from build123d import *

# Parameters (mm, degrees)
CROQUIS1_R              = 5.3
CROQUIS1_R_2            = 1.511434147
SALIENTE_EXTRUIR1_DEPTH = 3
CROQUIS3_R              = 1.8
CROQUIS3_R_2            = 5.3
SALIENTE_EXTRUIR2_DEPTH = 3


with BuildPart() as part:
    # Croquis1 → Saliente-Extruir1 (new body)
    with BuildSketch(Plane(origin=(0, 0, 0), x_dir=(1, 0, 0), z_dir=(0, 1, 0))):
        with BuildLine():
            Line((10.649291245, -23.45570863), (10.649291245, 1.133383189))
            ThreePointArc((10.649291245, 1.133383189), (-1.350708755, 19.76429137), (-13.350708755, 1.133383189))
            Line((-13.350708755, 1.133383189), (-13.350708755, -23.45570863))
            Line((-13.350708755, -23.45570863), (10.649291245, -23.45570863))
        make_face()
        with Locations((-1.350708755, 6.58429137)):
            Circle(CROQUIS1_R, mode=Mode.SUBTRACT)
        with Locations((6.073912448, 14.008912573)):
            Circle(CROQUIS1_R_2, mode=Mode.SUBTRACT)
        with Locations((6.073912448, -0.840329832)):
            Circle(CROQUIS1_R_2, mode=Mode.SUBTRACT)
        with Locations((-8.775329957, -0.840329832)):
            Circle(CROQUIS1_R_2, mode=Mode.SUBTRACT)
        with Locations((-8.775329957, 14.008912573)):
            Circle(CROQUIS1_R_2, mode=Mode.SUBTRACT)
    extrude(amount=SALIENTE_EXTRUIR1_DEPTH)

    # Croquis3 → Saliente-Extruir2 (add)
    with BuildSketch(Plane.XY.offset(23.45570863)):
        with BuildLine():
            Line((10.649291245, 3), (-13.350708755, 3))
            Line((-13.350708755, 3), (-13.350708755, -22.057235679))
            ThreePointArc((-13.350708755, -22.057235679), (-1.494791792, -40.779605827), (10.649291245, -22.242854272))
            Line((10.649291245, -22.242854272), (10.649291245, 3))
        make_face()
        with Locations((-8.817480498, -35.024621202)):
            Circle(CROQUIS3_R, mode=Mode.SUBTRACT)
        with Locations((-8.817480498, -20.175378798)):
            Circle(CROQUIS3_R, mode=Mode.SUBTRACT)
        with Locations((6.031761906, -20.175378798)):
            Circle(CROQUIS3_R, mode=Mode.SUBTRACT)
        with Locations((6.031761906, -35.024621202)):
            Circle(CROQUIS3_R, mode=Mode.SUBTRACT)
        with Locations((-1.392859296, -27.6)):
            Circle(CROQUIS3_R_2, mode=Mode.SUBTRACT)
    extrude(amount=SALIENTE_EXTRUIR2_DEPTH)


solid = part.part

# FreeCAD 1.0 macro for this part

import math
import FreeCAD as App
import Part
import Sketcher

doc = App.newDocument("Part")
body = doc.addObject("PartDesign::Body", "Body")

# Sketch on XZ plane
sketch1 = body.newObject("Sketcher::SketchObject", "Sketch")
sketch1.AttachmentSupport = (doc.getObject("XZ_Plane"), [""])
sketch1.MapMode = "FlatFace"
sketch1.addGeometry([
    Part.LineSegment(App.Vector(10.649291, 23.455709, 0), App.Vector(10.649291, -1.133383, 0)),  # 0
    Part.ArcOfCircle(Part.Circle(App.Vector(-1.350709, -6.584291, 0), App.Vector(0, 0, 1), 13.18), math.radians(155.57044), math.radians(384.42956)),  # 1
    Part.LineSegment(App.Vector(-13.350709, -1.133383, 0), App.Vector(-13.350709, 23.455709, 0)),  # 2
    Part.LineSegment(App.Vector(-13.350709, 23.455709, 0), App.Vector(10.649291, 23.455709, 0)),  # 3
    Part.Circle(App.Vector(-8.77533, 0.84033, 0), App.Vector(0, 0, 1), 1.511434),  # 4
    Part.Circle(App.Vector(-1.350709, -6.584291, 0), App.Vector(0, 0, 1), 5.3),  # 5
    Part.Circle(App.Vector(6.073912, 0.84033, 0), App.Vector(0, 0, 1), 1.511434),  # 6
    Part.Circle(App.Vector(-8.77533, -14.008913, 0), App.Vector(0, 0, 1), 1.511434),  # 7
    Part.Circle(App.Vector(6.073912, -14.008913, 0), App.Vector(0, 0, 1), 1.511434),  # 8
], False)
sketch1.addConstraint([
    Sketcher.Constraint("Coincident", 0, 2, 1, 2),
    Sketcher.Constraint("Coincident", 1, 1, 2, 1),
    Sketcher.Constraint("Coincident", 2, 2, 3, 1),
    Sketcher.Constraint("Coincident", 3, 2, 0, 1),
    Sketcher.Constraint("Vertical", 0),
    Sketcher.Constraint("Vertical", 2),
    Sketcher.Constraint("Horizontal", 3),
    Sketcher.Constraint("Coincident", 5, 3, 1, 3),
    Sketcher.Constraint("Equal", 4, 6),
    Sketcher.Constraint("Equal", 6, 7),
    Sketcher.Constraint("Equal", 7, 8),
    Sketcher.Constraint("Horizontal", 4, 3, 6, 3),
    Sketcher.Constraint("Horizontal", 7, 3, 8, 3),
    Sketcher.Constraint("Horizontal", 0, 2, 1, 1),
    Sketcher.Constraint("Vertical", 4, 3, 7, 3),
    Sketcher.Constraint("Vertical", 6, 3, 8, 3),
    Sketcher.Constraint("Diameter", 5, 10.6),
    Sketcher.Constraint("DistanceX", 3, 1, 3, 2, 24.0),
    Sketcher.Constraint("Radius", 1, 13.18),
    Sketcher.Constraint("Diameter", 4, 3.022868),
    Sketcher.Constraint("DistanceY", 1, 3, 2, 2, 30.04),
    Sketcher.Constraint("DistanceX", 1, 3, -1, 1, 1.350709),
    Sketcher.Constraint("DistanceY", 1, 3, -1, 1, 6.584291),
    Sketcher.Constraint("DistanceX", 4, 3, -1, 1, 8.77533),
    Sketcher.Constraint("DistanceY", -1, 1, 4, 3, 0.84033),
    Sketcher.Constraint("DistanceX", 1, 3, 6, 3, 7.424621),
    Sketcher.Constraint("DistanceY", 7, 3, 1, 3, 7.424621),
])
pad1 = body.newObject("PartDesign::Pad", "Pad")
pad1.Profile = sketch1
pad1.Length = 3
pad1.Reversed = True

# Sketch on XY plane
sketch2 = body.newObject("Sketcher::SketchObject", "Sketch001")
sketch2.AttachmentSupport = (doc.getObject("XY_Plane"), [""])
sketch2.MapMode = "FlatFace"
sketch2.AttachmentOffset = App.Placement(App.Vector(0, 0, 23.455709), App.Rotation())
sketch2.addGeometry([
    Part.LineSegment(App.Vector(10.649291, 3, 0), App.Vector(-13.350709, 3, 0)),  # 0
    Part.LineSegment(App.Vector(-13.350709, 3, 0), App.Vector(-13.350709, -22.057236, 0)),  # 1
    Part.ArcOfCircle(Part.Circle(App.Vector(-1.392859, -27.6, 0), App.Vector(0, 0, 1), 13.18), math.radians(155.13109), math.radians(383.982665)),  # 2
    Part.LineSegment(App.Vector(10.649291, -22.242854, 0), App.Vector(10.649291, 3, 0)),  # 3
    Part.Circle(App.Vector(-8.81748, -35.024621, 0), App.Vector(0, 0, 1), 1.8),  # 4
    Part.Circle(App.Vector(6.031762, -35.024621, 0), App.Vector(0, 0, 1), 1.8),  # 5
    Part.Circle(App.Vector(-1.392859, -27.6, 0), App.Vector(0, 0, 1), 5.3),  # 6
    Part.Circle(App.Vector(-8.81748, -20.175379, 0), App.Vector(0, 0, 1), 1.8),  # 7
    Part.Circle(App.Vector(6.031762, -20.175379, 0), App.Vector(0, 0, 1), 1.8),  # 8
], False)
sketch2.addConstraint([
    Sketcher.Constraint("Coincident", 0, 2, 1, 1),
    Sketcher.Constraint("Coincident", 1, 2, 2, 1),
    Sketcher.Constraint("Coincident", 2, 2, 3, 1),
    Sketcher.Constraint("Coincident", 3, 2, 0, 1),
    Sketcher.Constraint("Horizontal", 0),
    Sketcher.Constraint("Vertical", 1),
    Sketcher.Constraint("Vertical", 3),
    Sketcher.Constraint("Coincident", 6, 3, 2, 3),
    Sketcher.Constraint("Equal", 4, 5),
    Sketcher.Constraint("Equal", 5, 7),
    Sketcher.Constraint("Equal", 7, 8),
    Sketcher.Constraint("Horizontal", 4, 3, 5, 3),
    Sketcher.Constraint("Horizontal", 7, 3, 8, 3),
    Sketcher.Constraint("Vertical", 4, 3, 7, 3),
    Sketcher.Constraint("Vertical", 5, 3, 8, 3),
    Sketcher.Constraint("Diameter", 4, 3.6),
    Sketcher.Constraint("Diameter", 6, 10.6),
    Sketcher.Constraint("DistanceX", 0, 2, 0, 1, 24.0),
    Sketcher.Constraint("Radius", 2, 13.18),
    Sketcher.Constraint("DistanceY", -1, 1, 0, 2, 3.0),
    Sketcher.Constraint("DistanceY", 2, 3, -1, 1, 27.6),
    Sketcher.Constraint("DistanceY", 1, 2, 1, 1, 25.057236),
    Sketcher.Constraint("DistanceX", 2, 3, -1, 1, 1.392859),
    Sketcher.Constraint("DistanceX", 4, 3, -1, 1, 8.81748),
    Sketcher.Constraint("DistanceY", 4, 3, -1, 1, 35.024621),
    Sketcher.Constraint("DistanceX", -1, 1, 5, 3, 6.031762),
    Sketcher.Constraint("DistanceY", 7, 3, -1, 1, 20.175379),
])
pad2 = body.newObject("PartDesign::Pad", "Pad001")
pad2.Profile = sketch2
pad2.Length = 3

doc.recompute()
